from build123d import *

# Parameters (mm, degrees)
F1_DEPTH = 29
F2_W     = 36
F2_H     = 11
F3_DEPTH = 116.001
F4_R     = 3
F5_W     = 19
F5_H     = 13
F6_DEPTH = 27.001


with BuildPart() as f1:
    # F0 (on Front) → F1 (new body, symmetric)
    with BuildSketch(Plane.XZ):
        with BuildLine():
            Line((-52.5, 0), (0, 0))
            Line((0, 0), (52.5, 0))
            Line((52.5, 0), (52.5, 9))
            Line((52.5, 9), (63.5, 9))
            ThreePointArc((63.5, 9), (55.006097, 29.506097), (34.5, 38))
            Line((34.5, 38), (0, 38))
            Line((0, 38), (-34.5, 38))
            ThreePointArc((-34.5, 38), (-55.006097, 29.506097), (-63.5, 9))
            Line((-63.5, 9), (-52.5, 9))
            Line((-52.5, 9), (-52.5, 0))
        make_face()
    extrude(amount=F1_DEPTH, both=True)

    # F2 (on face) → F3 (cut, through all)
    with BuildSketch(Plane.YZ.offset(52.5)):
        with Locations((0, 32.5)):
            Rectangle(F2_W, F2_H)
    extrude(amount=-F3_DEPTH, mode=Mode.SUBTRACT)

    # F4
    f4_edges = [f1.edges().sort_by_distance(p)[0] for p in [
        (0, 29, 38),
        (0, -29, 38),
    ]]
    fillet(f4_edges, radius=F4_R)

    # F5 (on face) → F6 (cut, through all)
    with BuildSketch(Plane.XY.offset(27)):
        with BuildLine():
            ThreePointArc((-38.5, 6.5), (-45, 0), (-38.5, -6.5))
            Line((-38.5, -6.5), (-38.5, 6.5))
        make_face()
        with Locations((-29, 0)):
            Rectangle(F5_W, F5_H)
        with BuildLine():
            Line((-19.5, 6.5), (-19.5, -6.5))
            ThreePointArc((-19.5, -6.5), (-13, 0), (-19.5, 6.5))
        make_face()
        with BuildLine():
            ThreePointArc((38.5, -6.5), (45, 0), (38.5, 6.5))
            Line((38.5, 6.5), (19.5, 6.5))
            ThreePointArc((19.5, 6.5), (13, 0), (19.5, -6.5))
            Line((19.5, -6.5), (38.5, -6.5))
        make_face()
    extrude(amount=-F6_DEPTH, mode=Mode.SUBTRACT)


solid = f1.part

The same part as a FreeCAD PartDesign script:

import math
import FreeCAD as App
import Part
import Sketcher
Q = App.Units.Quantity


def edges_at(feature, points):
    """Names of the edges that pass closest to the given points."""
    edges = feature.Shape.Edges
    near = lambda p: min(range(len(edges)), key=lambda i: edges[i].distToShape(Part.Vertex(*p))[0])
    return sorted({f"Edge{near(p) + 1}" for p in points})


def add_polygon(sketch, points):
    """Adds a closed chain of lines whose ends are joined by coincident constraints."""
    first, n = sketch.GeometryCount, len(points)
    for a, b in zip(points, points[1:] + points[:1]):
        sketch.addGeometry(Part.LineSegment(App.Vector(*a, 0), App.Vector(*b, 0)), False)
    for i in range(n):
        sketch.addConstraint(Sketcher.Constraint("Coincident", first + i, 2, first + (i + 1) % n, 1))

doc = App.newDocument("Part")
body = doc.addObject("PartDesign::Body", "Body")

sketch1 = body.newObject("Sketcher::SketchObject", "Sketch")
sketch1.AttachmentSupport = (doc.getObject("XZ_Plane"), [""])
sketch1.MapMode = "FlatFace"
sketch1.addGeometry([
    Part.LineSegment(App.Vector(-52, 0, 0), App.Vector(52, 0, 0)),
    Part.LineSegment(App.Vector(52, 0, 0), App.Vector(52, 9, 0)),
    Part.LineSegment(App.Vector(52, 9, 0), App.Vector(64, 9, 0)),
    Part.ArcOfCircle(Part.Circle(App.Vector(35, 9, 0), App.Vector(0, 0, 1), 29), math.radians(0), math.radians(90)),
    Part.LineSegment(App.Vector(34, 38, 0), App.Vector(-34, 38, 0)),
    Part.ArcOfCircle(Part.Circle(App.Vector(-35, 9, 0), App.Vector(0, 0, 1), 29), math.radians(90), math.radians(180)),
    Part.LineSegment(App.Vector(-64, 9, 0), App.Vector(-52, 9, 0)),
    Part.LineSegment(App.Vector(-52, 9, 0), App.Vector(-52, 0, 0)),
], False)
sketch1.addConstraint([
    Sketcher.Constraint("Coincident", 0, 2, 1, 1),
    Sketcher.Constraint("Coincident", 1, 2, 2, 1),
    Sketcher.Constraint("Coincident", 2, 2, 3, 1),
    Sketcher.Constraint("Tangent", 3, 2, 4, 1),
    Sketcher.Constraint("Tangent", 4, 2, 5, 1),
    Sketcher.Constraint("Coincident", 5, 2, 6, 1),
    Sketcher.Constraint("Coincident", 6, 2, 7, 1),
    Sketcher.Constraint("Coincident", 7, 2, 0, 1),
    Sketcher.Constraint("Horizontal", 0),
    Sketcher.Constraint("Vertical", 1),
    Sketcher.Constraint("Horizontal", 2),
    Sketcher.Constraint("Horizontal", 4),
    Sketcher.Constraint("Horizontal", 6),
    Sketcher.Constraint("Vertical", 7),
    Sketcher.Constraint("Equal", 3, 5),
    Sketcher.Constraint("Symmetric", 0, 2, 7, 2, -1, 1),
    Sketcher.Constraint("Symmetric", 2, 2, 5, 2, -2),
    Sketcher.Constraint("Horizontal", 5, 3, 1, 2),
    Sketcher.Constraint("Radius", 3, Q("28.999999 mm")),
    Sketcher.Constraint("DistanceX", 0, 1, 0, 2, Q("105 mm")),
    Sketcher.Constraint("DistanceX", 2, 1, 2, 2, Q("11 mm")),
    Sketcher.Constraint("DistanceY", 1, 1, 1, 2, Q("9 mm")),
])
pad1 = body.newObject("PartDesign::Pad", "Pad")
pad1.Profile = sketch1
pad1.Length = 58
pad1.Midplane = True

sketch2 = body.newObject("Sketcher::SketchObject", "Sketch001")
sketch2.AttachmentSupport = (doc.getObject("YZ_Plane"), [""])
sketch2.MapMode = "FlatFace"
sketch2.AttachmentOffset = App.Placement(App.Vector(0, 0, 52.5), App.Rotation())
add_polygon(sketch2, [(-18, 38), (-18, 27), (18, 27), (18, 38)])
sketch2.addConstraint([
    Sketcher.Constraint("Vertical", 0),
    Sketcher.Constraint("Horizontal", 1),
    Sketcher.Constraint("Vertical", 2),
    Sketcher.Constraint("Horizontal", 3),
    Sketcher.Constraint("DistanceX", 1, 1, 1, 2, Q("36 mm")),
    Sketcher.Constraint("DistanceY", 0, 2, 0, 1, Q("11 mm")),
    Sketcher.Constraint("DistanceX", 0, 2, -1, 1, Q("18 mm")),
    Sketcher.Constraint("DistanceY", -1, 1, 0, 2, Q("27 mm")),
])
pocket1 = body.newObject("PartDesign::Pocket", "Pocket")
pocket1.Profile = sketch2
pocket1.Type = "ThroughAll"
doc.recompute()

fillet = body.newObject("PartDesign::Fillet", "Fillet")
fillet.Base = (pocket1, edges_at(pocket1, [(0, 29, 38), (0, -29, 38)]))
fillet.Radius = 3

sketch3 = body.newObject("Sketcher::SketchObject", "Sketch002")
sketch3.AttachmentSupport = (doc.getObject("XY_Plane"), [""])
sketch3.MapMode = "FlatFace"
sketch3.AttachmentOffset = App.Placement(App.Vector(0, 0, 27), App.Rotation())
sketch3.addGeometry([
    Part.ArcOfCircle(Part.Circle(App.Vector(-38, 0, 0), App.Vector(0, 0, 1), 6), math.radians(90), math.radians(270)),
    Part.LineSegment(App.Vector(-38, -6, 0), App.Vector(-20, -6, 0)),
    Part.ArcOfCircle(Part.Circle(App.Vector(-20, 0, 0), App.Vector(0, 0, 1), 6), math.radians(-90), math.radians(90)),
    Part.LineSegment(App.Vector(-20, 6, 0), App.Vector(-38, 6, 0)),
    Part.ArcOfCircle(Part.Circle(App.Vector(38, 0, 0), App.Vector(0, 0, 1), 6), math.radians(-90), math.radians(90)),
    Part.LineSegment(App.Vector(38, 6, 0), App.Vector(20, 6, 0)),
    Part.ArcOfCircle(Part.Circle(App.Vector(20, 0, 0), App.Vector(0, 0, 1), 6), math.radians(90), math.radians(270)),
    Part.LineSegment(App.Vector(20, -6, 0), App.Vector(38, -6, 0)),
], False)
sketch3.addConstraint([
    Sketcher.Constraint("Tangent", 0, 2, 1, 1),
    Sketcher.Constraint("Tangent", 1, 2, 2, 1),
    Sketcher.Constraint("Tangent", 2, 2, 3, 1),
    Sketcher.Constraint("Tangent", 3, 2, 0, 1),
    Sketcher.Constraint("Tangent", 4, 2, 5, 1),
    Sketcher.Constraint("Tangent", 5, 2, 6, 1),
    Sketcher.Constraint("Tangent", 6, 2, 7, 1),
    Sketcher.Constraint("Tangent", 7, 2, 4, 1),
    Sketcher.Constraint("Horizontal", 1),
    Sketcher.Constraint("Horizontal", 3),
    Sketcher.Constraint("Horizontal", 5),
    Sketcher.Constraint("Horizontal", 7),
    Sketcher.Constraint("Equal", 2, 4),
    Sketcher.Constraint("Symmetric", 0, 3, 4, 3, -1, 1),
    Sketcher.Constraint("Symmetric", 2, 3, 6, 3, -2),
    Sketcher.Constraint("Radius", 0, Q("6.5 mm")),
    Sketcher.Constraint("DistanceX", 1, 1, 1, 2, Q("19 mm")),
    Sketcher.Constraint("DistanceX", 2, 3, 4, 3, Q("58 mm")),
])
pocket2 = body.newObject("PartDesign::Pocket", "Pocket001")
pocket2.Profile = sketch3
pocket2.Type = "ThroughAll"

doc.recompute()
